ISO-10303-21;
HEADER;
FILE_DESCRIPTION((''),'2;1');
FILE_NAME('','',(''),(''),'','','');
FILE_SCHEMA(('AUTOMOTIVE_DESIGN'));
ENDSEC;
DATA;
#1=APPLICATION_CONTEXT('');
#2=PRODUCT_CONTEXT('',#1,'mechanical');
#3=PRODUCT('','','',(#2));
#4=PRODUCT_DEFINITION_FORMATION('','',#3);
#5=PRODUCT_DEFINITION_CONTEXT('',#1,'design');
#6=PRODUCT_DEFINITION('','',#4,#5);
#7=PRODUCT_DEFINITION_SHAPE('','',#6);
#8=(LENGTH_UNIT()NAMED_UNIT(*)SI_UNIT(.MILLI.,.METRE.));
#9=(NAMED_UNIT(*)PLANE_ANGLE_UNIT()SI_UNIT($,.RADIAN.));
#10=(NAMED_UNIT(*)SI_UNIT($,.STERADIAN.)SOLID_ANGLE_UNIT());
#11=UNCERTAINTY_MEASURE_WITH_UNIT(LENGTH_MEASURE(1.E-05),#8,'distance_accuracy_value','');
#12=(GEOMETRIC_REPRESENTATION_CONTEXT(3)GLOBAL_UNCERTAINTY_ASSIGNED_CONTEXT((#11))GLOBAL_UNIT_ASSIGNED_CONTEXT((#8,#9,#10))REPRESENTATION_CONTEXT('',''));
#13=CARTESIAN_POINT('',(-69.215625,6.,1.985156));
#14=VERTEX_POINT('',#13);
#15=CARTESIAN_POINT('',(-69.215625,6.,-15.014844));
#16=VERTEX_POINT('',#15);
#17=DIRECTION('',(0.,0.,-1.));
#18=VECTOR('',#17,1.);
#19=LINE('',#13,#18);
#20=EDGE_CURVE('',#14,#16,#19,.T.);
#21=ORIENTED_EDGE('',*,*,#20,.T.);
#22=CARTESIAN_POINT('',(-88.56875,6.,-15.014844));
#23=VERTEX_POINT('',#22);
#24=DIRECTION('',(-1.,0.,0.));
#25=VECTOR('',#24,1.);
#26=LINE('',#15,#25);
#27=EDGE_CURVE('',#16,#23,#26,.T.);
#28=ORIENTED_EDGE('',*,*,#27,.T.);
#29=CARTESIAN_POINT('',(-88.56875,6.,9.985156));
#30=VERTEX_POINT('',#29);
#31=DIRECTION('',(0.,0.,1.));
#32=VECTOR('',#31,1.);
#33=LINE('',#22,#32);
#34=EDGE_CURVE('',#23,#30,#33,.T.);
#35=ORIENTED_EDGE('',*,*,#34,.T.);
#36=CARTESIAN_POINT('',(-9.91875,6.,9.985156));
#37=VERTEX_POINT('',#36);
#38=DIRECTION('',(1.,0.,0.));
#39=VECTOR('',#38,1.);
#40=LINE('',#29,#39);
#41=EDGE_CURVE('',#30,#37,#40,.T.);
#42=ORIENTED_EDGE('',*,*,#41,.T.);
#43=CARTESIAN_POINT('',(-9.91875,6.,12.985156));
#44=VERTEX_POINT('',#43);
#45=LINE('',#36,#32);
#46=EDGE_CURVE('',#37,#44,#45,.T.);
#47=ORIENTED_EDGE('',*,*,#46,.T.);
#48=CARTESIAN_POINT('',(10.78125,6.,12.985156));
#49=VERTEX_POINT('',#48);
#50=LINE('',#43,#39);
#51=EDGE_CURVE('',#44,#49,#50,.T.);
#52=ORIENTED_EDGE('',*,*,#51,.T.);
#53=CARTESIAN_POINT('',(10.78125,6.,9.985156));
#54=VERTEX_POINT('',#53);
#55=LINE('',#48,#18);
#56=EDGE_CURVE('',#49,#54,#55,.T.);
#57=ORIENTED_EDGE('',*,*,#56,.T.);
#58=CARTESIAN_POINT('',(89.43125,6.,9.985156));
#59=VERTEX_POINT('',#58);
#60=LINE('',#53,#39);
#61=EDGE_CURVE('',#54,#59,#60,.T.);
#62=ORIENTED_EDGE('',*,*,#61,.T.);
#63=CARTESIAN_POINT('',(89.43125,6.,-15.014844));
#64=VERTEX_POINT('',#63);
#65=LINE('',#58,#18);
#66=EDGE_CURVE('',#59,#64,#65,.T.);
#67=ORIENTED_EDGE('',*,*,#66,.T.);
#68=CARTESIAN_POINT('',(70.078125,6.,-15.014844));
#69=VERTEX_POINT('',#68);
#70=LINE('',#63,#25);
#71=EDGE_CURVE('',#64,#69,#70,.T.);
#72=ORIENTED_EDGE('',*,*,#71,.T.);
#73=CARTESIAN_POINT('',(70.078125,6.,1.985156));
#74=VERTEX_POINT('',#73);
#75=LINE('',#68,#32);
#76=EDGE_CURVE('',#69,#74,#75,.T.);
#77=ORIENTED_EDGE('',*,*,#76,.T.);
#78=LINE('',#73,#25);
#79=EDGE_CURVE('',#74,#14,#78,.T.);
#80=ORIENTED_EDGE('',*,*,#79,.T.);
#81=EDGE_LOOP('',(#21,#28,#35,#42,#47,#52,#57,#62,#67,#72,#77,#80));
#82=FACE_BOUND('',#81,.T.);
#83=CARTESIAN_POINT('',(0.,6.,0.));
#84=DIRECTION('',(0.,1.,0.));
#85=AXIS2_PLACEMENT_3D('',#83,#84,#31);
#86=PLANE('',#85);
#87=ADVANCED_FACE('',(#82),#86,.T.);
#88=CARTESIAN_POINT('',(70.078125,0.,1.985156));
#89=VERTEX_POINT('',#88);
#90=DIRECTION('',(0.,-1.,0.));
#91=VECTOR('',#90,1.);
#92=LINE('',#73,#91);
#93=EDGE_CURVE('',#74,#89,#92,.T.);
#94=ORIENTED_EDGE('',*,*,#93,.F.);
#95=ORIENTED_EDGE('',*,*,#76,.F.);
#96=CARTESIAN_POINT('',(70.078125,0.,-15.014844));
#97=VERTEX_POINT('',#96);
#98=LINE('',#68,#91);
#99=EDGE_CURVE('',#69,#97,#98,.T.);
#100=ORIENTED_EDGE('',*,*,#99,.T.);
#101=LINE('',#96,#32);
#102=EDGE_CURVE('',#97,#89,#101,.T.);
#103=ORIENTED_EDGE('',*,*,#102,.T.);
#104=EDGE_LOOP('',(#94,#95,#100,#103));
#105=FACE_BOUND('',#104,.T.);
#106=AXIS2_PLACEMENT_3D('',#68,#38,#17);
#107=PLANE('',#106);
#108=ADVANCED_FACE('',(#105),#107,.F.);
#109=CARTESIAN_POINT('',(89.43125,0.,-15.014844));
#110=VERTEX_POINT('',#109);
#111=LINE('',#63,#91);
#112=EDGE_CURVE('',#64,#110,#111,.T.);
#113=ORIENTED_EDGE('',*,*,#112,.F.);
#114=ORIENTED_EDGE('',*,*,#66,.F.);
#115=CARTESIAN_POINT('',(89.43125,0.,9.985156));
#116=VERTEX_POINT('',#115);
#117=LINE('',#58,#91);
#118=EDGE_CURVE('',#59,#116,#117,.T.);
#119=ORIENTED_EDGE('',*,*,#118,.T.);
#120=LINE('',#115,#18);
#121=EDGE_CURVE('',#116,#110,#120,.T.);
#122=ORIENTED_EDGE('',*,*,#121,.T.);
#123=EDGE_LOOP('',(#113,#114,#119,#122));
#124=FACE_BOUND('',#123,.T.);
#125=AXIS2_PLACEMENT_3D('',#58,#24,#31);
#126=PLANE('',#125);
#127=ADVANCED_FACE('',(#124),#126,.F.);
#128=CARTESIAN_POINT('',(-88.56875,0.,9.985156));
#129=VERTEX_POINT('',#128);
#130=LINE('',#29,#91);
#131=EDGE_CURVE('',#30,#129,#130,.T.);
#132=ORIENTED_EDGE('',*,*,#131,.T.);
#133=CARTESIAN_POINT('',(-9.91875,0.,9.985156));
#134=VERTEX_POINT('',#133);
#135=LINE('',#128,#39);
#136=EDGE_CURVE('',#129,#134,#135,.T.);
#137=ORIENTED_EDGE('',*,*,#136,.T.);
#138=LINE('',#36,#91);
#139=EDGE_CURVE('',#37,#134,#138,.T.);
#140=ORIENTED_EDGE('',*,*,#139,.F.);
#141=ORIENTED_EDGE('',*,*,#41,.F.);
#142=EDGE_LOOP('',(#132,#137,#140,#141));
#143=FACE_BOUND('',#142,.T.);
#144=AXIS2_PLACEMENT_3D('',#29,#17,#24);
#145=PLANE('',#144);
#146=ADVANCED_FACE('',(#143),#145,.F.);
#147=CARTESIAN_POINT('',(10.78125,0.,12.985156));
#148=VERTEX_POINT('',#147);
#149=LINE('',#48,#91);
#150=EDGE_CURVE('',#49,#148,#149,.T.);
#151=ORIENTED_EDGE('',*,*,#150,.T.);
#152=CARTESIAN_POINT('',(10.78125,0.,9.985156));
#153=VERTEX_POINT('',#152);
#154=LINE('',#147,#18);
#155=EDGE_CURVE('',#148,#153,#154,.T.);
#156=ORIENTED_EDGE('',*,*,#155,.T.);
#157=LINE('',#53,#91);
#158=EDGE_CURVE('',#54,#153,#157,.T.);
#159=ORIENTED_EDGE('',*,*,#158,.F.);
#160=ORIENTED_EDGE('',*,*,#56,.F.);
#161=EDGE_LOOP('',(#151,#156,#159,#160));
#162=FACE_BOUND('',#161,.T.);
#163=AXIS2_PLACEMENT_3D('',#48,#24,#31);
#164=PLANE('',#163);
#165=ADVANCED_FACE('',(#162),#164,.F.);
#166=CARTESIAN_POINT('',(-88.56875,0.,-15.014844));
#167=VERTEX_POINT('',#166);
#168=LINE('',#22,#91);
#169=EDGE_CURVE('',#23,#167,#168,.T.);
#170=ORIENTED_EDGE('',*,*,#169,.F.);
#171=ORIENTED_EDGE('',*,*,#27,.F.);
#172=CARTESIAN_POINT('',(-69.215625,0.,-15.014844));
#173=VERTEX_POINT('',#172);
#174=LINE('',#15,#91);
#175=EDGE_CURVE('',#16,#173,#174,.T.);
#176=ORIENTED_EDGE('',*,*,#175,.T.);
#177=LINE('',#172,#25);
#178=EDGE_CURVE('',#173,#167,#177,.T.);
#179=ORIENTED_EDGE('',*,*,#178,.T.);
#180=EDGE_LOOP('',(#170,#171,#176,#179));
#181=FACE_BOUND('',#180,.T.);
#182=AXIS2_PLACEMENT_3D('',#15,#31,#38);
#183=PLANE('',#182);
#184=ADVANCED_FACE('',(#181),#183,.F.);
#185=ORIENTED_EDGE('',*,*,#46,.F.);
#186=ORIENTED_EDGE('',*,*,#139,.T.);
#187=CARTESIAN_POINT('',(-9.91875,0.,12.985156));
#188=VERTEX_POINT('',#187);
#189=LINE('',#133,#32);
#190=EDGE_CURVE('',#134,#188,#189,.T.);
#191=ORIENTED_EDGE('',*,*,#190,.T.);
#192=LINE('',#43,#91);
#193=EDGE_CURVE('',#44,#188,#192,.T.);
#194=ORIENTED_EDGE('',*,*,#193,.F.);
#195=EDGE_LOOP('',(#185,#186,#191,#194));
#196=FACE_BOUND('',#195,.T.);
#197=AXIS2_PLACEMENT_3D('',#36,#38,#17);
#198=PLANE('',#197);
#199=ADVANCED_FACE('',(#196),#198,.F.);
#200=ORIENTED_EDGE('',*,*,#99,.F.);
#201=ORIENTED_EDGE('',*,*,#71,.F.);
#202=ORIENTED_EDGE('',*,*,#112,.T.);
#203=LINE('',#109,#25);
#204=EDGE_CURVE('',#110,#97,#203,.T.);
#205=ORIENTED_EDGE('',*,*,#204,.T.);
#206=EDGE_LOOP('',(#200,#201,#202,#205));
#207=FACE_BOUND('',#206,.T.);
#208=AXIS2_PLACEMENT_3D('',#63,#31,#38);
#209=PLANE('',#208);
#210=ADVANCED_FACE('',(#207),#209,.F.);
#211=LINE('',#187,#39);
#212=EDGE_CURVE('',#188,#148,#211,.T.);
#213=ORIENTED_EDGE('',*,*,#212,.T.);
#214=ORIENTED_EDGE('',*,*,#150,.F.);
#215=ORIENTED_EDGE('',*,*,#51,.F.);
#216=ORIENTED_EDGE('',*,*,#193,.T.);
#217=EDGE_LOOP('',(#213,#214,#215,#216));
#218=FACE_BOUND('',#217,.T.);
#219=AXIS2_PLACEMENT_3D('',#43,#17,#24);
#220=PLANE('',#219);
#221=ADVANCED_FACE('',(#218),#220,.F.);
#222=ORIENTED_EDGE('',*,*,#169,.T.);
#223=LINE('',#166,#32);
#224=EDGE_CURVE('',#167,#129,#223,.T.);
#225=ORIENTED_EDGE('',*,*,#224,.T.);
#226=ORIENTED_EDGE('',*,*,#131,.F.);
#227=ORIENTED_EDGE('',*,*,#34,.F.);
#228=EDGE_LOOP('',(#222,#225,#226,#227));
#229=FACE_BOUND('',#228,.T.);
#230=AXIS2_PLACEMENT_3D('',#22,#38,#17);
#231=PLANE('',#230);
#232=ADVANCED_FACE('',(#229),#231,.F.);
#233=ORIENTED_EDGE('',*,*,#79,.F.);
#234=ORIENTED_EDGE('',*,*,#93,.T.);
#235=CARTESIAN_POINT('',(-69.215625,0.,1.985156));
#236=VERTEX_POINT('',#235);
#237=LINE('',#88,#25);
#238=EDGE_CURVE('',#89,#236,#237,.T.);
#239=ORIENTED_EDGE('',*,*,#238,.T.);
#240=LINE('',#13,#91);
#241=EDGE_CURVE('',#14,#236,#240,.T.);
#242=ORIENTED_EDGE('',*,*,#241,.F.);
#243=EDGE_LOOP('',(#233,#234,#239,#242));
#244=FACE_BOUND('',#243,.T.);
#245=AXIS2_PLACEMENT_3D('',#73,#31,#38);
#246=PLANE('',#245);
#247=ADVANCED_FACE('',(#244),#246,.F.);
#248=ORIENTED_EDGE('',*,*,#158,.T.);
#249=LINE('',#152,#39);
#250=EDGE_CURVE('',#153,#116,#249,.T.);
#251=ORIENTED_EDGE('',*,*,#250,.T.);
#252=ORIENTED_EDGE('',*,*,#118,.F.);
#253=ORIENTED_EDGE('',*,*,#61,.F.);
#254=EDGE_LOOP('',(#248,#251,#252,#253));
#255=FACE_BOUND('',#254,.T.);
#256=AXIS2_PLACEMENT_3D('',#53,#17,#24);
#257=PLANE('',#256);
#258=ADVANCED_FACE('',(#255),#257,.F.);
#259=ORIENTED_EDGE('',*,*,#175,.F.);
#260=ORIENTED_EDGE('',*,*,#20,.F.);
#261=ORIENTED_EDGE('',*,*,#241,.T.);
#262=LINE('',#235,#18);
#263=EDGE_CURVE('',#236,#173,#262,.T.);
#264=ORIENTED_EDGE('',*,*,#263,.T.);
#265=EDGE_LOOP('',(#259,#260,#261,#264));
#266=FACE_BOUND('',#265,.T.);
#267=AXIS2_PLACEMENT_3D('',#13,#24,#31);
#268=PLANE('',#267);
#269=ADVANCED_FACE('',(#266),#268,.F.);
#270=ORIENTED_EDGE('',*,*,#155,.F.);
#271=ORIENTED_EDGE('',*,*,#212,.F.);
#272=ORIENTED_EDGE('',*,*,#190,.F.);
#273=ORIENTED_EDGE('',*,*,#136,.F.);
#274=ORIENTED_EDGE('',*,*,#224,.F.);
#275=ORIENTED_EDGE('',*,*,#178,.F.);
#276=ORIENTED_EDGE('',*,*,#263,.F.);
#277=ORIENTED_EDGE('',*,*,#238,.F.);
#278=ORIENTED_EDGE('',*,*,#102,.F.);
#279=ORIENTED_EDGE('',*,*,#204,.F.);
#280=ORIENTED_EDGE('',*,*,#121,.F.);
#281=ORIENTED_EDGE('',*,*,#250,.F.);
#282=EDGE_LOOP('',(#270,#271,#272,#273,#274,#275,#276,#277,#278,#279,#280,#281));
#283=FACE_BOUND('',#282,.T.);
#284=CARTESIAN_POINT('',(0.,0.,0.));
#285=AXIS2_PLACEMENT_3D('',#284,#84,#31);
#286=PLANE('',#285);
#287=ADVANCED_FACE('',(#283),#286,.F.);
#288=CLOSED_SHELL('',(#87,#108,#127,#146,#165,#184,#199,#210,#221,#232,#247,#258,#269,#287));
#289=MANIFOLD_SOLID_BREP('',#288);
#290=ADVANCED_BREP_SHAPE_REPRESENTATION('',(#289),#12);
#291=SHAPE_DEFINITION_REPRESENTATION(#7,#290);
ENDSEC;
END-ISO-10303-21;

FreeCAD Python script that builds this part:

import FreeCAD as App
import Part
import Sketcher
from FreeCAD import Vector


def add_polygon(sketch, points):
    """Adds a closed chain of lines whose ends are joined by coincident constraints."""
    first, n = sketch.GeometryCount, len(points)
    for a, b in zip(points, points[1:] + points[:1]):
        sketch.addGeometry(Part.LineSegment(App.Vector(*a, 0), App.Vector(*b, 0)), False)
    for i in range(n):
        sketch.addConstraint(Sketcher.Constraint("Coincident", first + i, 2, first + (i + 1) % n, 1))

doc = App.newDocument("Part")
params = doc.addObject("Spreadsheet::Sheet", "Params")
for row, (alias, value) in enumerate([
    ("sketch1_height", "3 mm"),
    ("sketch1_height2", "25 mm"),
    ("sketch1_height3", "17 mm"),
    ("sketch1_width", "20.7 mm"),
    ("sketch1_width2", "78.65 mm"),
    ("pad1_length", "6 mm"),
], start=1):
    params.set(f"A{row}", alias)
    params.set(f"B{row}", "=" + value)
    params.setAlias(f"B{row}", alias)

body = doc.addObject("PartDesign::Body", "Body")

sketch1 = body.newObject("Sketcher::SketchObject", "Sketch")
sketch1.AttachmentSupport = (doc.getObject("XZ_Plane"), [""])
sketch1.MapMode = "FlatFace"
add_polygon(sketch1, [(-9.91875, 12.985156), (10.78125, 12.985156), (10.78125, 9.985156), (89.43125, 9.985156), (89.43125, -15.014844), (70.078125, -15.014844), (70.078125, 1.985156), (-69.215625, 1.985156), (-69.215625, -15.014844), (-88.56875, -15.014844), (-88.56875, 9.985156), (-9.91875, 9.985156)])
sketch1.addConstraint([
    Sketcher.Constraint("Horizontal", 0),
    Sketcher.Constraint("Vertical", 1),
    Sketcher.Constraint("Horizontal", 2),
    Sketcher.Constraint("Vertical", 3),
    Sketcher.Constraint("Horizontal", 4),
    Sketcher.Constraint("Vertical", 5),
    Sketcher.Constraint("Horizontal", 6),
    Sketcher.Constraint("Vertical", 7),
    Sketcher.Constraint("Horizontal", 8),
    Sketcher.Constraint("Vertical", 9),
    Sketcher.Constraint("Horizontal", 10),
    Sketcher.Constraint("Vertical", 11),
    Sketcher.Constraint("Horizontal", 4, 2, 7, 2),
    Sketcher.Constraint("Horizontal", 2, 2, 9, 2),
    Sketcher.Constraint("Equal", 4, 8),
    Sketcher.Constraint("Equal", 2, 10),
    Sketcher.Constraint("DistanceY", 1, 2, 1, 1, 3.0),
    Sketcher.Constraint("DistanceY", 3, 2, 3, 1, 25.0),
    Sketcher.Constraint("DistanceY", 5, 1, 5, 2, 17.0),
    Sketcher.Constraint("DistanceX", 0, 1, 0, 2, 20.7),
    Sketcher.Constraint("DistanceX", 2, 1, 2, 2, 78.65),
    Sketcher.Constraint("DistanceX", 6, 2, 6, 1, 139.29375),
    Sketcher.Constraint("DistanceX", -1, 1, 0, 2, 10.78125),
    Sketcher.Constraint("DistanceY", -1, 1, 0, 2, 12.985156),
])
sketch1.setExpression("Constraints[28]", "Params.sketch1_height")
sketch1.setExpression("Constraints[29]", "Params.sketch1_height2")
sketch1.setExpression("Constraints[30]", "Params.sketch1_height3")
sketch1.setExpression("Constraints[31]", "Params.sketch1_width")
sketch1.setExpression("Constraints[32]", "Params.sketch1_width2")
pad1 = body.newObject("PartDesign::Pad", "Pad")
pad1.Profile = sketch1
pad1.setExpression("Length", "Params.pad1_length")
pad1.Reversed = True

doc.recompute()
